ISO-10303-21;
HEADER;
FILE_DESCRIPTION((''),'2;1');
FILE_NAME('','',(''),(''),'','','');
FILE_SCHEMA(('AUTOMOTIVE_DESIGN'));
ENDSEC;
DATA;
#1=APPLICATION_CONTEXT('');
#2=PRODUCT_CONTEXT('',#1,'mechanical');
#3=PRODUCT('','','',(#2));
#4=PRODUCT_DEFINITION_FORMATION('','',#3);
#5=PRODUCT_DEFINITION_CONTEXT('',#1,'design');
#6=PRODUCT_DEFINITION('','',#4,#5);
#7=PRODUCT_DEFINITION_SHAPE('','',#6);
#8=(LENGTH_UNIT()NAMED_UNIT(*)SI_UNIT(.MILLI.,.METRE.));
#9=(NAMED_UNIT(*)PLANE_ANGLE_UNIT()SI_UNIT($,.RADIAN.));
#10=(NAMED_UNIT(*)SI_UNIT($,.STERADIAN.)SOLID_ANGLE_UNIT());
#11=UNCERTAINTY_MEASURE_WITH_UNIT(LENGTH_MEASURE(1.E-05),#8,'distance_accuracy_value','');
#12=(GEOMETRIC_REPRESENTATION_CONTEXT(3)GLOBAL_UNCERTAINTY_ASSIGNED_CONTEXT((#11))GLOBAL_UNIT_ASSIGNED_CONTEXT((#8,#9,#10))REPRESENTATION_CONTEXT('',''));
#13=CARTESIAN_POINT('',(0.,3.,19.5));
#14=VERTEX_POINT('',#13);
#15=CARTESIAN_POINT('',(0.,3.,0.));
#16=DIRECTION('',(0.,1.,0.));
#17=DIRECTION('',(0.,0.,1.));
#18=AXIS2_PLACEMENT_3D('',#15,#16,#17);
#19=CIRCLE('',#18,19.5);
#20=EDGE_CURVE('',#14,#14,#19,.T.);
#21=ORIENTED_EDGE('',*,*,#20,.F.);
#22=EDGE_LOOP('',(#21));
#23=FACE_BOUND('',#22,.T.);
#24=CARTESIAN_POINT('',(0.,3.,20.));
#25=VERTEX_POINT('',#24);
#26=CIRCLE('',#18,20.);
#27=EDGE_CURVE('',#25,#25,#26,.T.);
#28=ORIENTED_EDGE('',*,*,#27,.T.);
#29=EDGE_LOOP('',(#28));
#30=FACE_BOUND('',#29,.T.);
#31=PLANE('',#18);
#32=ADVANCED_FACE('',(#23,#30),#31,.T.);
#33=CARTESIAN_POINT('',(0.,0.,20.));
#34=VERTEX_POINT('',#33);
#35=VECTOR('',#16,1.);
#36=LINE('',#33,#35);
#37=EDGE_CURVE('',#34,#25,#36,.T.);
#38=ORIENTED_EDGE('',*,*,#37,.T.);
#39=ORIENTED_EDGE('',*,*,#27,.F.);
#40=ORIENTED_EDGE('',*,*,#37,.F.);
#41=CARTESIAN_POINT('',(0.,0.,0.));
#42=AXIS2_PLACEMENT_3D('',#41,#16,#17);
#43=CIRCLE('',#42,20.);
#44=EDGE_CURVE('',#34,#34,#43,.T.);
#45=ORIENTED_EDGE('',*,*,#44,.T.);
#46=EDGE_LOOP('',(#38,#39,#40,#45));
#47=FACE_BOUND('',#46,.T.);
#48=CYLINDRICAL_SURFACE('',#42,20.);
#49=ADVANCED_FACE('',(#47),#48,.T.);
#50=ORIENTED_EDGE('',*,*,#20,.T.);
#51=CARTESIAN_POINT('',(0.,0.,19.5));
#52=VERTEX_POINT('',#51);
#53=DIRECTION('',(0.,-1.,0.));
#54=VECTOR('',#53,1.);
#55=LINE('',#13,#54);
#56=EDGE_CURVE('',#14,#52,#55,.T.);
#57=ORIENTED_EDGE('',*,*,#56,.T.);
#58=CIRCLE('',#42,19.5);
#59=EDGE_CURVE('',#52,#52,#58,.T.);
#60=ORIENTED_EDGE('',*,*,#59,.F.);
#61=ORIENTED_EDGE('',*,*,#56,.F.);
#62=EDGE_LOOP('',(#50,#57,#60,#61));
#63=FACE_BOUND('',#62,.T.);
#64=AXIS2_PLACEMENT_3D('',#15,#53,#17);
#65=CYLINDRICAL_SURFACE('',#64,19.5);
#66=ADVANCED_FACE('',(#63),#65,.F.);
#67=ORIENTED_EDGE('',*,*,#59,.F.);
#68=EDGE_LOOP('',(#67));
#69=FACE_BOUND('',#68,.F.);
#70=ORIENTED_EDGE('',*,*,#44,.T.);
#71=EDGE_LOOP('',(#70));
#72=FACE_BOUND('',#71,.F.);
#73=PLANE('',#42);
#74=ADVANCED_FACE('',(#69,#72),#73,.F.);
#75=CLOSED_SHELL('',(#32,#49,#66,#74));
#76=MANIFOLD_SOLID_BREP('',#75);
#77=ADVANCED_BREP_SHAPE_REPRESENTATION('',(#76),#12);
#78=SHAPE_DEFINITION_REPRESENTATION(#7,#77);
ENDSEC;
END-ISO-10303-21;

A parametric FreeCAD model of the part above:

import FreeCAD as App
import Part
import Sketcher

V = App.Vector

doc = App.newDocument("Part")
body = doc.addObject("PartDesign::Body", "Body")

# Sketch on YZ plane
sketch1 = body.newObject("Sketcher::SketchObject", "Sketch")
sketch1.AttachmentSupport = (doc.getObject("YZ_Plane"), [""])
sketch1.MapMode = "FlatFace"
sketch1.addGeometry([
    Part.LineSegment(V(3, 20, 0), V(0, 20, 0)),
    Part.LineSegment(V(0, 20, 0), V(0, 19.5, 0)),
    Part.LineSegment(V(0, 19.5, 0), V(3, 19.5, 0)),
    Part.LineSegment(V(3, 19.5, 0), V(3, 20, 0)),
], False)
sketch1.addConstraint([
    Sketcher.Constraint("Coincident", 0, 2, 1, 1),
    Sketcher.Constraint("Coincident", 1, 2, 2, 1),
    Sketcher.Constraint("Coincident", 2, 2, 3, 1),
    Sketcher.Constraint("Coincident", 3, 2, 0, 1),
    Sketcher.Constraint("Horizontal", 0),
    Sketcher.Constraint("Vertical", 1),
    Sketcher.Constraint("Horizontal", 2),
    Sketcher.Constraint("Vertical", 3),
    Sketcher.Constraint("PointOnObject", 0, 2, -2),
    Sketcher.Constraint("DistanceX", 0, 2, 0, 1, 3.0),
    Sketcher.Constraint("DistanceY", 1, 2, 1, 1, 0.5),
    Sketcher.Constraint("DistanceY", -1, 1, 0, 2, 20.0),
])
revolution = body.newObject("PartDesign::Revolution", "Revolution")
revolution.Profile = sketch1
revolution.ReferenceAxis = (sketch1, ["H_Axis"])
revolution.Angle = 360

doc.recompute()
